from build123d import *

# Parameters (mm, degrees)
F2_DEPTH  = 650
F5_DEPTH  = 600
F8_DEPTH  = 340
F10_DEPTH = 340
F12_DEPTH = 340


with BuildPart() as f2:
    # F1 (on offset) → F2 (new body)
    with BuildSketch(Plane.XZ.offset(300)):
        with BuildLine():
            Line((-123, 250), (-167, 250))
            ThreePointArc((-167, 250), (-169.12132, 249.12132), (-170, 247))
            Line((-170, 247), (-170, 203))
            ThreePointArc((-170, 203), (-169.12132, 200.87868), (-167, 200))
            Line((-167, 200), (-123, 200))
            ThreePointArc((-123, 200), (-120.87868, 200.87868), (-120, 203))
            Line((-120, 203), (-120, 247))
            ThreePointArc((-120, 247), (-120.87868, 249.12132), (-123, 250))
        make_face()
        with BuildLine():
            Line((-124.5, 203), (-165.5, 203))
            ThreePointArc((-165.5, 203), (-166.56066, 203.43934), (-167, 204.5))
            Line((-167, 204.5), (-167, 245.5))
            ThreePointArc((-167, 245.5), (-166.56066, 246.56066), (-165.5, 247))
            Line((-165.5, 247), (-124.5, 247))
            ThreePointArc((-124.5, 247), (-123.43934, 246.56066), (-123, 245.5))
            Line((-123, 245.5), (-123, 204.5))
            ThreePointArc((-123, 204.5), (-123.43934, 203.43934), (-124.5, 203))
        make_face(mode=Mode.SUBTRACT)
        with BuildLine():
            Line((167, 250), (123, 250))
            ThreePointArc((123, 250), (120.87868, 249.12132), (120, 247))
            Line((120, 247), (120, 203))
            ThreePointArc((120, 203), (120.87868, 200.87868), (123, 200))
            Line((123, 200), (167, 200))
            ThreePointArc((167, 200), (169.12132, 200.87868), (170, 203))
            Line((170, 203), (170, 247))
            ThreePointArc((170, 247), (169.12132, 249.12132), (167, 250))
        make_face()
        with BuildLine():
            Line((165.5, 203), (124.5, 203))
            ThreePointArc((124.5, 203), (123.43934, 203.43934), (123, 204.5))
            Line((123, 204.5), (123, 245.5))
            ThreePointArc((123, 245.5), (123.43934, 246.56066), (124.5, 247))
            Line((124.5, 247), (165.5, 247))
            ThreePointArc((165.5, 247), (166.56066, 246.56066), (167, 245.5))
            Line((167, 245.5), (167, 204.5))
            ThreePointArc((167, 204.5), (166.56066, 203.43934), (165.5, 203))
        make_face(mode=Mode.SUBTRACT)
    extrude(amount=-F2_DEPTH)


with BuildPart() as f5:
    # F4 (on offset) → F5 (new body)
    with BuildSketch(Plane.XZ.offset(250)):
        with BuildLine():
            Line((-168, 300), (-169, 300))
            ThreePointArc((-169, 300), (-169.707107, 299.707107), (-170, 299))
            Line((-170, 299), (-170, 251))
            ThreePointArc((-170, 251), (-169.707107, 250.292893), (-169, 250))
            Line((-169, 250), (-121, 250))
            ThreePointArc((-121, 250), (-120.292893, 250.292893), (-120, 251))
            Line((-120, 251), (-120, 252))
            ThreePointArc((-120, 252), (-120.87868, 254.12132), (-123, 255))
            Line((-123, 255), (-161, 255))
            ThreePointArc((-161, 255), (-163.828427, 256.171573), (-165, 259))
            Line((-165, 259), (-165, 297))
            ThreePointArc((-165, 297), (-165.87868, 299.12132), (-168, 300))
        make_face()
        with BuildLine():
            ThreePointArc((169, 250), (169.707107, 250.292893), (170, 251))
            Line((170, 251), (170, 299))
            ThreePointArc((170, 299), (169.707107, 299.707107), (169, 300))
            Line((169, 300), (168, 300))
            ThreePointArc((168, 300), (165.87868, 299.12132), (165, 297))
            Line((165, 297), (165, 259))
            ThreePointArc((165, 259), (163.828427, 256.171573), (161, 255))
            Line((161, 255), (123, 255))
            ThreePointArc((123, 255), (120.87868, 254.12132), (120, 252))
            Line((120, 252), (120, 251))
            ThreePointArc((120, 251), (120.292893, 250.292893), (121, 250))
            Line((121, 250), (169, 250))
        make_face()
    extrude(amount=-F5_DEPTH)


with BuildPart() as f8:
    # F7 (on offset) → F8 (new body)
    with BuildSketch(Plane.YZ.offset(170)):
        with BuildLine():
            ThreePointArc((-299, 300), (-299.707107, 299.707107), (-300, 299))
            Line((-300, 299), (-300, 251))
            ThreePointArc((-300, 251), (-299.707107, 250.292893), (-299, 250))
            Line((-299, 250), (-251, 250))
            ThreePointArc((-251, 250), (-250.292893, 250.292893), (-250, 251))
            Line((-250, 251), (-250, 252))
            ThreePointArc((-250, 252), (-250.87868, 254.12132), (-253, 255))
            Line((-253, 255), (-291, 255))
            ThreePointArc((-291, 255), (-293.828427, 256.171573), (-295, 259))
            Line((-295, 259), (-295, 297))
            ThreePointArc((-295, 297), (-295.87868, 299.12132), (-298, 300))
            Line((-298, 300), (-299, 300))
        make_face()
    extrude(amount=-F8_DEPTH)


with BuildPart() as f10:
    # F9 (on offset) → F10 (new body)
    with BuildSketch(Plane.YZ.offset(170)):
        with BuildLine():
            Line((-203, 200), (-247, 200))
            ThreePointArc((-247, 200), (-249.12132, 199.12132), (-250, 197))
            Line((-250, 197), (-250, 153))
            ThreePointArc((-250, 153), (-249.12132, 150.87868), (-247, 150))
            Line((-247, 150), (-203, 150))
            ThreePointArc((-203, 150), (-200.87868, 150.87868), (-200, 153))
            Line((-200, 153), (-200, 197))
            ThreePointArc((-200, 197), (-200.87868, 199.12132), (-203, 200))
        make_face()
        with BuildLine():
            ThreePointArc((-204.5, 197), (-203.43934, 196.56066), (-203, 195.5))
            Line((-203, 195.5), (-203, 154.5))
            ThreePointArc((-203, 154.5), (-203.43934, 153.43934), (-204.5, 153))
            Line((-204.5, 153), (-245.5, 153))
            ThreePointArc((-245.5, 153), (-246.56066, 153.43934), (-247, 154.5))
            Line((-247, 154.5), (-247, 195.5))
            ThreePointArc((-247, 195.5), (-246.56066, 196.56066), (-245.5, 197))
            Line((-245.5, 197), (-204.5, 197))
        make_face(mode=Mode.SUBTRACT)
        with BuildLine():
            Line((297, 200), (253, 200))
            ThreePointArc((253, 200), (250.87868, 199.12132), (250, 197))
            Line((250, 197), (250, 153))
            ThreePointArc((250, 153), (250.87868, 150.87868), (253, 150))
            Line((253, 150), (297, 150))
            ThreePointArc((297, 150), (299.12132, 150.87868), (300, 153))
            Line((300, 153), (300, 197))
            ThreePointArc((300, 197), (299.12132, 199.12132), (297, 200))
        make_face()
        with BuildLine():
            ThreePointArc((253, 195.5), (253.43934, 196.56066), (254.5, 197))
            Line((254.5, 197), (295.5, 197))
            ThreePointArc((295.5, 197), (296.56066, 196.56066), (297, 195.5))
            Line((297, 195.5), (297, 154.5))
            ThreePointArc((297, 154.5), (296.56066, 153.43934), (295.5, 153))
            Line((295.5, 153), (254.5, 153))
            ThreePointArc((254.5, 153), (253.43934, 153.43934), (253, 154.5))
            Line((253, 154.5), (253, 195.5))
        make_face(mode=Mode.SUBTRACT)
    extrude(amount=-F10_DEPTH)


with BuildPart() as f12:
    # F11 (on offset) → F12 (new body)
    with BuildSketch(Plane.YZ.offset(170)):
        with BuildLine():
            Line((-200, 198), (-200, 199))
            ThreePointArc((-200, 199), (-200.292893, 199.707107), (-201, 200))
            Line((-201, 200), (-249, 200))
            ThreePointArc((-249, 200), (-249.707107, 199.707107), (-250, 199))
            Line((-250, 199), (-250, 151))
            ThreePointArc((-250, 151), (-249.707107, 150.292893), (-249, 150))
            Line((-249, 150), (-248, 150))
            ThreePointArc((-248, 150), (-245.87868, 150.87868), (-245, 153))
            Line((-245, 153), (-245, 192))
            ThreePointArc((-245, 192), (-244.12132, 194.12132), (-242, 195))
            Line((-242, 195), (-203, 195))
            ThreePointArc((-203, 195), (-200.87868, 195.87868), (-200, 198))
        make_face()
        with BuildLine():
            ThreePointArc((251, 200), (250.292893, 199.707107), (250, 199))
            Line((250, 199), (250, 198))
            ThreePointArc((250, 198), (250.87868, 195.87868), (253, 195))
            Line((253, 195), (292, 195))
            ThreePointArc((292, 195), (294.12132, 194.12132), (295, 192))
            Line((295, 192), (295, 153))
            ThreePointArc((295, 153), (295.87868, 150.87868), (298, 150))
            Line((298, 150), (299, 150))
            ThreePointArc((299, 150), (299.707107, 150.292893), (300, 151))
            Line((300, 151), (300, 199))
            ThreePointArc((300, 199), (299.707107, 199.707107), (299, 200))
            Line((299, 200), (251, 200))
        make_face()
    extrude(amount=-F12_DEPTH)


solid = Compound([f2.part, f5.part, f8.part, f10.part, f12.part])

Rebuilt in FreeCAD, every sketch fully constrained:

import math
import FreeCAD as App
import Part
import Sketcher
Q = App.Units.Quantity

doc = App.newDocument("Part")
body = doc.addObject("PartDesign::Body", "Body")
body.AllowCompound = True

sketch1 = body.newObject("Sketcher::SketchObject", "Sketch")
sketch1.AttachmentSupport = (doc.getObject("XZ_Plane"), [""])
sketch1.MapMode = "FlatFace"
sketch1.AttachmentOffset = App.Placement(App.Vector(0, 0, 300), App.Rotation())
sketch1.addGeometry([
    Part.LineSegment(App.Vector(-123, 250, 0), App.Vector(-167, 250, 0)),
    Part.ArcOfCircle(Part.Circle(App.Vector(-167, 247, 0), App.Vector(0, 0, 1), 3), math.radians(90), math.radians(180)),
    Part.LineSegment(App.Vector(-170, 247, 0), App.Vector(-170, 203, 0)),
    Part.ArcOfCircle(Part.Circle(App.Vector(-167, 203, 0), App.Vector(0, 0, 1), 3), math.radians(-180), math.radians(-90)),
    Part.LineSegment(App.Vector(-167, 200, 0), App.Vector(-123, 200, 0)),
    Part.ArcOfCircle(Part.Circle(App.Vector(-123, 203, 0), App.Vector(0, 0, 1), 3), math.radians(-90), math.radians(0)),
    Part.LineSegment(App.Vector(-120, 203, 0), App.Vector(-120, 247, 0)),
    Part.ArcOfCircle(Part.Circle(App.Vector(-123, 247, 0), App.Vector(0, 0, 1), 3), math.radians(0), math.radians(90)),
    Part.ArcOfCircle(Part.Circle(App.Vector(-124.5, 204.5, 0), App.Vector(0, 0, 1), 1.5), math.radians(-90), math.radians(0)),
    Part.LineSegment(App.Vector(-124.5, 203, 0), App.Vector(-165.5, 203, 0)),
    Part.ArcOfCircle(Part.Circle(App.Vector(-165.5, 204.5, 0), App.Vector(0, 0, 1), 1.5), math.radians(-180), math.radians(-90)),
    Part.LineSegment(App.Vector(-167, 204.5, 0), App.Vector(-167, 245.5, 0)),
    Part.ArcOfCircle(Part.Circle(App.Vector(-165.5, 245.5, 0), App.Vector(0, 0, 1), 1.5), math.radians(90), math.radians(180)),
    Part.LineSegment(App.Vector(-165.5, 247, 0), App.Vector(-124.5, 247, 0)),
    Part.ArcOfCircle(Part.Circle(App.Vector(-124.5, 245.5, 0), App.Vector(0, 0, 1), 1.5), math.radians(0), math.radians(90)),
    Part.LineSegment(App.Vector(-123, 245.5, 0), App.Vector(-123, 204.5, 0)),
    Part.LineSegment(App.Vector(167, 250, 0), App.Vector(123, 250, 0)),
    Part.ArcOfCircle(Part.Circle(App.Vector(123, 247, 0), App.Vector(0, 0, 1), 3), math.radians(90), math.radians(180)),
    Part.LineSegment(App.Vector(120, 247, 0), App.Vector(120, 203, 0)),
    Part.ArcOfCircle(Part.Circle(App.Vector(123, 203, 0), App.Vector(0, 0, 1), 3), math.radians(-180), math.radians(-90)),
    Part.LineSegment(App.Vector(123, 200, 0), App.Vector(167, 200, 0)),
    Part.ArcOfCircle(Part.Circle(App.Vector(167, 203, 0), App.Vector(0, 0, 1), 3), math.radians(-90), math.radians(0)),
    Part.LineSegment(App.Vector(170, 203, 0), App.Vector(170, 247, 0)),
    Part.ArcOfCircle(Part.Circle(App.Vector(167, 247, 0), App.Vector(0, 0, 1), 3), math.radians(0), math.radians(90)),
    Part.ArcOfCircle(Part.Circle(App.Vector(165.5, 204.5, 0), App.Vector(0, 0, 1), 1.5), math.radians(-90), math.radians(0)),
    Part.LineSegment(App.Vector(165.5, 203, 0), App.Vector(124.5, 203, 0)),
    Part.ArcOfCircle(Part.Circle(App.Vector(124.5, 204.5, 0), App.Vector(0, 0, 1), 1.5), math.radians(-180), math.radians(-90)),
    Part.LineSegment(App.Vector(123, 204.5, 0), App.Vector(123, 245.5, 0)),
    Part.ArcOfCircle(Part.Circle(App.Vector(124.5, 245.5, 0), App.Vector(0, 0, 1), 1.5), math.radians(90), math.radians(180)),
    Part.LineSegment(App.Vector(124.5, 247, 0), App.Vector(165.5, 247, 0)),
    Part.ArcOfCircle(Part.Circle(App.Vector(165.5, 245.5, 0), App.Vector(0, 0, 1), 1.5), math.radians(0), math.radians(90)),
    Part.LineSegment(App.Vector(167, 245.5, 0), App.Vector(167, 204.5, 0)),
], False)
sketch1.addConstraint([
    Sketcher.Constraint("Tangent", 0, 2, 1, 1),
    Sketcher.Constraint("Tangent", 1, 2, 2, 1),
    Sketcher.Constraint("Tangent", 2, 2, 3, 1),
    Sketcher.Constraint("Tangent", 3, 2, 4, 1),
    Sketcher.Constraint("Tangent", 4, 2, 5, 1),
    Sketcher.Constraint("Tangent", 5, 2, 6, 1),
    Sketcher.Constraint("Tangent", 6, 2, 7, 1),
    Sketcher.Constraint("Tangent", 7, 2, 0, 1),
    Sketcher.Constraint("Tangent", 8, 1, 9, 1),
    Sketcher.Constraint("Tangent", 9, 2, 10, 2),
    Sketcher.Constraint("Tangent", 10, 1, 11, 1),
    Sketcher.Constraint("Tangent", 11, 2, 12, 2),
    Sketcher.Constraint("Tangent", 12, 1, 13, 1),
    Sketcher.Constraint("Tangent", 13, 2, 14, 2),
    Sketcher.Constraint("Tangent", 14, 1, 15, 1),
    Sketcher.Constraint("Tangent", 15, 2, 8, 2),
    Sketcher.Constraint("Tangent", 16, 2, 17, 1),
    Sketcher.Constraint("Tangent", 17, 2, 18, 1),
    Sketcher.Constraint("Tangent", 18, 2, 19, 1),
    Sketcher.Constraint("Tangent", 19, 2, 20, 1),
    Sketcher.Constraint("Tangent", 20, 2, 21, 1),
    Sketcher.Constraint("Tangent", 21, 2, 22, 1),
    Sketcher.Constraint("Tangent", 22, 2, 23, 1),
    Sketcher.Constraint("Tangent", 23, 2, 16, 1),
    Sketcher.Constraint("Tangent", 24, 1, 25, 1),
    Sketcher.Constraint("Tangent", 25, 2, 26, 2),
    Sketcher.Constraint("Tangent", 26, 1, 27, 1),
    Sketcher.Constraint("Tangent", 27, 2, 28, 2),
    Sketcher.Constraint("Tangent", 28, 1, 29, 1),
    Sketcher.Constraint("Tangent", 29, 2, 30, 2),
    Sketcher.Constraint("Tangent", 30, 1, 31, 1),
    Sketcher.Constraint("Tangent", 31, 2, 24, 2),
    Sketcher.Constraint("Horizontal", 0),
    Sketcher.Constraint("Vertical", 2),
    Sketcher.Constraint("Horizontal", 4),
    Sketcher.Constraint("Vertical", 6),
    Sketcher.Constraint("Horizontal", 9),
    Sketcher.Constraint("Vertical", 11),
    Sketcher.Constraint("Horizontal", 13),
    Sketcher.Constraint("Vertical", 15),
    Sketcher.Constraint("Horizontal", 16),
    Sketcher.Constraint("Vertical", 18),
    Sketcher.Constraint("Horizontal", 20),
    Sketcher.Constraint("Vertical", 22),
    Sketcher.Constraint("Horizontal", 25),
    Sketcher.Constraint("Vertical", 27),
    Sketcher.Constraint("Horizontal", 29),
    Sketcher.Constraint("Vertical", 31),
    Sketcher.Constraint("Equal", 1, 3),
    Sketcher.Constraint("Equal", 3, 5),
    Sketcher.Constraint("Equal", 5, 7),
    Sketcher.Constraint("Equal", 8, 10),
    Sketcher.Constraint("Equal", 10, 12),
    Sketcher.Constraint("Equal", 12, 14),
    Sketcher.Constraint("Equal", 7, 17),
    Sketcher.Constraint("Equal", 17, 19),
    Sketcher.Constraint("Equal", 19, 21),
    Sketcher.Constraint("Equal", 21, 23),
    Sketcher.Constraint("Equal", 14, 24),
    Sketcher.Constraint("Equal", 24, 26),
    Sketcher.Constraint("Equal", 26, 28),
    Sketcher.Constraint("Equal", 28, 30),
    Sketcher.Constraint("Symmetric", 7, 3, 17, 3, -2),
    Sketcher.Constraint("Symmetric", 3, 3, 21, 3, -2),
    Sketcher.Constraint("Symmetric", 10, 3, 24, 3, -2),
    Sketcher.Constraint("Symmetric", 14, 3, 28, 3, -2),
    Sketcher.Constraint("Horizontal", 5, 2, 8, 1),
    Sketcher.Constraint("Horizontal", 6, 2, 12, 1),
    Sketcher.Constraint("Vertical", 3, 2, 10, 1),
    Sketcher.Constraint("Vertical", 7, 2, 14, 1),
    Sketcher.Constraint("Equal", 20, 2),
    Sketcher.Constraint("Radius", 1, Q("3.000001 mm")),
    Sketcher.Constraint("Radius", 8, Q("1.500001 mm")),
    Sketcher.Constraint("DistanceX", 0, 2, 0, 1, Q("44 mm")),
    Sketcher.Constraint("DistanceX", 1, 3, -1, 1, Q("166.999999 mm")),
    Sketcher.Constraint("DistanceY", -1, 1, 1, 3, Q("246.999999 mm")),
])
pad1 = body.newObject("PartDesign::Pad", "Pad")
pad1.Profile = sketch1
pad1.Length = 650
pad1.Reversed = True
body2 = doc.addObject("PartDesign::Body", "Body001")
body2.AllowCompound = True

sketch2 = body2.newObject("Sketcher::SketchObject", "Sketch001")
sketch2.AttachmentSupport = (doc.getObject("XZ_Plane001"), [""])
sketch2.MapMode = "FlatFace"
sketch2.AttachmentOffset = App.Placement(App.Vector(0, 0, 250), App.Rotation())
sketch2.addGeometry([
    Part.LineSegment(App.Vector(-168, 300, 0), App.Vector(-169, 300, 0)),
    Part.ArcOfCircle(Part.Circle(App.Vector(-169, 299, 0), App.Vector(0, 0, 1), 1), math.radians(90), math.radians(180)),
    Part.LineSegment(App.Vector(-170, 299, 0), App.Vector(-170, 251, 0)),
    Part.ArcOfCircle(Part.Circle(App.Vector(-169, 251, 0), App.Vector(0, 0, 1), 1), math.radians(180), math.radians(270)),
    Part.LineSegment(App.Vector(-169, 250, 0), App.Vector(-121, 250, 0)),
    Part.ArcOfCircle(Part.Circle(App.Vector(-121, 251, 0), App.Vector(0, 0, 1), 1), math.radians(-90), math.radians(0)),
    Part.LineSegment(App.Vector(-120, 251, 0), App.Vector(-120, 252, 0)),
    Part.ArcOfCircle(Part.Circle(App.Vector(-123, 252, 0), App.Vector(0, 0, 1), 3), math.radians(0), math.radians(90)),
    Part.LineSegment(App.Vector(-123, 255, 0), App.Vector(-161, 255, 0)),
    Part.ArcOfCircle(Part.Circle(App.Vector(-161, 259, 0), App.Vector(0, 0, 1), 4), math.radians(-180), math.radians(-90)),
    Part.LineSegment(App.Vector(-165, 259, 0), App.Vector(-165, 297, 0)),
    Part.ArcOfCircle(Part.Circle(App.Vector(-168, 297, 0), App.Vector(0, 0, 1), 3), math.radians(0), math.radians(90)),
    Part.ArcOfCircle(Part.Circle(App.Vector(169, 251, 0), App.Vector(0, 0, 1), 1), math.radians(-90), math.radians(0)),
    Part.LineSegment(App.Vector(170, 251, 0), App.Vector(170, 299, 0)),
    Part.ArcOfCircle(Part.Circle(App.Vector(169, 299, 0), App.Vector(0, 0, 1), 1), math.radians(0), math.radians(90)),
    Part.LineSegment(App.Vector(169, 300, 0), App.Vector(168, 300, 0)),
    Part.ArcOfCircle(Part.Circle(App.Vector(168, 297, 0), App.Vector(0, 0, 1), 3), math.radians(90), math.radians(180)),
    Part.LineSegment(App.Vector(165, 297, 0), App.Vector(165, 259, 0)),
    Part.ArcOfCircle(Part.Circle(App.Vector(161, 259, 0), App.Vector(0, 0, 1), 4), math.radians(-90), math.radians(0)),
    Part.LineSegment(App.Vector(161, 255, 0), App.Vector(123, 255, 0)),
    Part.ArcOfCircle(Part.Circle(App.Vector(123, 252, 0), App.Vector(0, 0, 1), 3), math.radians(90), math.radians(180)),
    Part.LineSegment(App.Vector(120, 252, 0), App.Vector(120, 251, 0)),
    Part.ArcOfCircle(Part.Circle(App.Vector(121, 251, 0), App.Vector(0, 0, 1), 1), math.radians(180), math.radians(270)),
    Part.LineSegment(App.Vector(121, 250, 0), App.Vector(169, 250, 0)),
], False)
sketch2.addConstraint([
    Sketcher.Constraint("Tangent", 0, 2, 1, 1),
    Sketcher.Constraint("Tangent", 1, 2, 2, 1),
    Sketcher.Constraint("Tangent", 2, 2, 3, 1),
    Sketcher.Constraint("Tangent", 3, 2, 4, 1),
    Sketcher.Constraint("Tangent", 4, 2, 5, 1),
    Sketcher.Constraint("Tangent", 5, 2, 6, 1),
    Sketcher.Constraint("Tangent", 6, 2, 7, 1),
    Sketcher.Constraint("Tangent", 7, 2, 8, 1),
    Sketcher.Constraint("Tangent", 8, 2, 9, 2),
    Sketcher.Constraint("Tangent", 9, 1, 10, 1),
    Sketcher.Constraint("Tangent", 10, 2, 11, 1),
    Sketcher.Constraint("Tangent", 11, 2, 0, 1),
    Sketcher.Constraint("Tangent", 12, 2, 13, 1),
    Sketcher.Constraint("Tangent", 13, 2, 14, 1),
    Sketcher.Constraint("Tangent", 14, 2, 15, 1),
    Sketcher.Constraint("Tangent", 15, 2, 16, 1),
    Sketcher.Constraint("Tangent", 16, 2, 17, 1),
    Sketcher.Constraint("Tangent", 17, 2, 18, 2),
    Sketcher.Constraint("Tangent", 18, 1, 19, 1),
    Sketcher.Constraint("Tangent", 19, 2, 20, 1),
    Sketcher.Constraint("Tangent", 20, 2, 21, 1),
    Sketcher.Constraint("Tangent", 21, 2, 22, 1),
    Sketcher.Constraint("Tangent", 22, 2, 23, 1),
    Sketcher.Constraint("Tangent", 23, 2, 12, 1),
    Sketcher.Constraint("Horizontal", 0),
    Sketcher.Constraint("Vertical", 2),
    Sketcher.Constraint("Horizontal", 4),
    Sketcher.Constraint("Vertical", 6),
    Sketcher.Constraint("Horizontal", 8),
    Sketcher.Constraint("Vertical", 10),
    Sketcher.Constraint("Vertical", 13),
    Sketcher.Constraint("Horizontal", 15),
    Sketcher.Constraint("Vertical", 17),
    Sketcher.Constraint("Horizontal", 19),
    Sketcher.Constraint("Vertical", 21),
    Sketcher.Constraint("Horizontal", 23),
    Sketcher.Constraint("Equal", 1, 3),
    Sketcher.Constraint("Equal", 3, 5),
    Sketcher.Constraint("Equal", 7, 11),
    Sketcher.Constraint("Equal", 5, 12),
    Sketcher.Constraint("Equal", 12, 14),
    Sketcher.Constraint("Equal", 11, 16),
    Sketcher.Constraint("Equal", 9, 18),
    Sketcher.Constraint("Equal", 16, 20),
    Sketcher.Constraint("Equal", 14, 22),
    Sketcher.Constraint("Symmetric", 3, 3, 12, 3, -2),
    Sketcher.Constraint("Symmetric", 11, 3, 16, 3, -2),
    Sketcher.Constraint("Symmetric", 7, 3, 20, 3, -2),
    Sketcher.Constraint("Equal", 23, 2),
    Sketcher.Constraint("Equal", 15, 6),
    Sketcher.Constraint("Radius", 1, Q("0.999999 mm")),
    Sketcher.Constraint("Radius", 7, Q("3.000001 mm")),
    Sketcher.Constraint("Radius", 9, Q("4 mm")),
    Sketcher.Constraint("DistanceX", 0, 2, 0, 1, Q("1 mm")),
    Sketcher.Constraint("DistanceX", 4, 1, 4, 2, Q("48 mm")),
    Sketcher.Constraint("DistanceX", 1, 3, -1, 1, Q("169.000001 mm")),
    Sketcher.Constraint("DistanceY", -1, 1, 1, 3, Q("299.000001 mm")),
])
pad2 = body2.newObject("PartDesign::Pad", "Pad001")
pad2.Profile = sketch2
pad2.Length = 600
pad2.Reversed = True
body3 = doc.addObject("PartDesign::Body", "Body002")

sketch3 = body3.newObject("Sketcher::SketchObject", "Sketch002")
sketch3.AttachmentSupport = (doc.getObject("YZ_Plane002"), [""])
sketch3.MapMode = "FlatFace"
sketch3.AttachmentOffset = App.Placement(App.Vector(0, 0, 170), App.Rotation())
sketch3.addGeometry([
    Part.ArcOfCircle(Part.Circle(App.Vector(-299, 299, 0), App.Vector(0, 0, 1), 1), math.radians(90), math.radians(180)),
    Part.LineSegment(App.Vector(-300, 299, 0), App.Vector(-300, 251, 0)),
    Part.ArcOfCircle(Part.Circle(App.Vector(-299, 251, 0), App.Vector(0, 0, 1), 1), math.radians(180), math.radians(270)),
    Part.LineSegment(App.Vector(-299, 250, 0), App.Vector(-251, 250, 0)),
    Part.ArcOfCircle(Part.Circle(App.Vector(-251, 251, 0), App.Vector(0, 0, 1), 1), math.radians(-90), math.radians(0)),
    Part.LineSegment(App.Vector(-250, 251, 0), App.Vector(-250, 252, 0)),
    Part.ArcOfCircle(Part.Circle(App.Vector(-253, 252, 0), App.Vector(0, 0, 1), 3), math.radians(0), math.radians(90)),
    Part.LineSegment(App.Vector(-253, 255, 0), App.Vector(-291, 255, 0)),
    Part.ArcOfCircle(Part.Circle(App.Vector(-291, 259, 0), App.Vector(0, 0, 1), 4), math.radians(-180), math.radians(-90)),
    Part.LineSegment(App.Vector(-295, 259, 0), App.Vector(-295, 297, 0)),
    Part.ArcOfCircle(Part.Circle(App.Vector(-298, 297, 0), App.Vector(0, 0, 1), 3), math.radians(0), math.radians(90)),
    Part.LineSegment(App.Vector(-298, 300, 0), App.Vector(-299, 300, 0)),
], False)
sketch3.addConstraint([
    Sketcher.Constraint("Tangent", 0, 2, 1, 1),
    Sketcher.Constraint("Tangent", 1, 2, 2, 1),
    Sketcher.Constraint("Tangent", 2, 2, 3, 1),
    Sketcher.Constraint("Tangent", 3, 2, 4, 1),
    Sketcher.Constraint("Tangent", 4, 2, 5, 1),
    Sketcher.Constraint("Tangent", 5, 2, 6, 1),
    Sketcher.Constraint("Tangent", 6, 2, 7, 1),
    Sketcher.Constraint("Tangent", 7, 2, 8, 2),
    Sketcher.Constraint("Tangent", 8, 1, 9, 1),
    Sketcher.Constraint("Tangent", 9, 2, 10, 1),
    Sketcher.Constraint("Tangent", 10, 2, 11, 1),
    Sketcher.Constraint("Tangent", 11, 2, 0, 1),
    Sketcher.Constraint("Vertical", 1),
    Sketcher.Constraint("Horizontal", 3),
    Sketcher.Constraint("Vertical", 5),
    Sketcher.Constraint("Horizontal", 7),
    Sketcher.Constraint("Vertical", 9),
    Sketcher.Constraint("Horizontal", 11),
    Sketcher.Constraint("Equal", 0, 2),
    Sketcher.Constraint("Equal", 2, 4),
    Sketcher.Constraint("Equal", 6, 10),
    Sketcher.Constraint("Equal", 3, 1),
    Sketcher.Constraint("Equal", 11, 5),
    Sketcher.Constraint("Radius", 0, Q("0.999999 mm")),
    Sketcher.Constraint("Radius", 6, Q("3.000001 mm")),
    Sketcher.Constraint("Radius", 8, Q("4 mm")),
    Sketcher.Constraint("DistanceX", 3, 1, 3, 2, Q("48 mm")),
    Sketcher.Constraint("DistanceX", 7, 2, 7, 1, Q("38 mm")),
    Sketcher.Constraint("DistanceX", 0, 3, -1, 1, Q("299.000001 mm")),
    Sketcher.Constraint("DistanceY", -1, 1, 0, 3, Q("299.000001 mm")),
])
pad3 = body3.newObject("PartDesign::Pad", "Pad002")
pad3.Profile = sketch3
pad3.Length = 340
pad3.Reversed = True
body4 = doc.addObject("PartDesign::Body", "Body003")
body4.AllowCompound = True

sketch4 = body4.newObject("Sketcher::SketchObject", "Sketch003")
sketch4.AttachmentSupport = (doc.getObject("YZ_Plane003"), [""])
sketch4.MapMode = "FlatFace"
sketch4.AttachmentOffset = App.Placement(App.Vector(0, 0, 170), App.Rotation())
sketch4.addGeometry([
    Part.LineSegment(App.Vector(-203, 200, 0), App.Vector(-247, 200, 0)),
    Part.ArcOfCircle(Part.Circle(App.Vector(-247, 197, 0), App.Vector(0, 0, 1), 3), math.radians(90), math.radians(180)),
    Part.LineSegment(App.Vector(-250, 197, 0), App.Vector(-250, 153, 0)),
    Part.ArcOfCircle(Part.Circle(App.Vector(-247, 153, 0), App.Vector(0, 0, 1), 3), math.radians(-180), math.radians(-90)),
    Part.LineSegment(App.Vector(-247, 150, 0), App.Vector(-203, 150, 0)),
    Part.ArcOfCircle(Part.Circle(App.Vector(-203, 153, 0), App.Vector(0, 0, 1), 3), math.radians(-90), math.radians(0)),
    Part.LineSegment(App.Vector(-200, 153, 0), App.Vector(-200, 197, 0)),
    Part.ArcOfCircle(Part.Circle(App.Vector(-203, 197, 0), App.Vector(0, 0, 1), 3), math.radians(0), math.radians(90)),
    Part.LineSegment(App.Vector(-245.5, 197, 0), App.Vector(-204.5, 197, 0)),
    Part.ArcOfCircle(Part.Circle(App.Vector(-204.5, 195.5, 0), App.Vector(0, 0, 1), 1.5), math.radians(0), math.radians(90)),
    Part.LineSegment(App.Vector(-203, 195.5, 0), App.Vector(-203, 154.5, 0)),
    Part.ArcOfCircle(Part.Circle(App.Vector(-204.5, 154.5, 0), App.Vector(0, 0, 1), 1.5), math.radians(-90), math.radians(0)),
    Part.LineSegment(App.Vector(-204.5, 153, 0), App.Vector(-245.5, 153, 0)),
    Part.ArcOfCircle(Part.Circle(App.Vector(-245.5, 154.5, 0), App.Vector(0, 0, 1), 1.5), math.radians(-180), math.radians(-90)),
    Part.LineSegment(App.Vector(-247, 154.5, 0), App.Vector(-247, 195.5, 0)),
    Part.ArcOfCircle(Part.Circle(App.Vector(-245.5, 195.5, 0), App.Vector(0, 0, 1), 1.5), math.radians(90), math.radians(180)),
    Part.LineSegment(App.Vector(297, 200, 0), App.Vector(253, 200, 0)),
    Part.ArcOfCircle(Part.Circle(App.Vector(253, 197, 0), App.Vector(0, 0, 1), 3), math.radians(90), math.radians(180)),
    Part.LineSegment(App.Vector(250, 197, 0), App.Vector(250, 153, 0)),
    Part.ArcOfCircle(Part.Circle(App.Vector(253, 153, 0), App.Vector(0, 0, 1), 3), math.radians(-180), math.radians(-90)),
    Part.LineSegment(App.Vector(253, 150, 0), App.Vector(297, 150, 0)),
    Part.ArcOfCircle(Part.Circle(App.Vector(297, 153, 0), App.Vector(0, 0, 1), 3), math.radians(-90), math.radians(0)),
    Part.LineSegment(App.Vector(300, 153, 0), App.Vector(300, 197, 0)),
    Part.ArcOfCircle(Part.Circle(App.Vector(297, 197, 0), App.Vector(0, 0, 1), 3), math.radians(0), math.radians(90)),
    Part.LineSegment(App.Vector(253, 154.5, 0), App.Vector(253, 195.5, 0)),
    Part.ArcOfCircle(Part.Circle(App.Vector(254.5, 195.5, 0), App.Vector(0, 0, 1), 1.5), math.radians(90), math.radians(180)),
    Part.LineSegment(App.Vector(254.5, 197, 0), App.Vector(295.5, 197, 0)),
    Part.ArcOfCircle(Part.Circle(App.Vector(295.5, 195.5, 0), App.Vector(0, 0, 1), 1.5), math.radians(0), math.radians(90)),
    Part.LineSegment(App.Vector(297, 195.5, 0), App.Vector(297, 154.5, 0)),
    Part.ArcOfCircle(Part.Circle(App.Vector(295.5, 154.5, 0), App.Vector(0, 0, 1), 1.5), math.radians(-90), math.radians(0)),
    Part.LineSegment(App.Vector(295.5, 153, 0), App.Vector(254.5, 153, 0)),
    Part.ArcOfCircle(Part.Circle(App.Vector(254.5, 154.5, 0), App.Vector(0, 0, 1), 1.5), math.radians(-180), math.radians(-90)),
], False)
sketch4.addConstraint([
    Sketcher.Constraint("Tangent", 0, 2, 1, 1),
    Sketcher.Constraint("Tangent", 1, 2, 2, 1),
    Sketcher.Constraint("Tangent", 2, 2, 3, 1),
    Sketcher.Constraint("Tangent", 3, 2, 4, 1),
    Sketcher.Constraint("Tangent", 4, 2, 5, 1),
    Sketcher.Constraint("Tangent", 5, 2, 6, 1),
    Sketcher.Constraint("Tangent", 6, 2, 7, 1),
    Sketcher.Constraint("Tangent", 7, 2, 0, 1),
    Sketcher.Constraint("Tangent", 8, 2, 9, 2),
    Sketcher.Constraint("Tangent", 9, 1, 10, 1),
    Sketcher.Constraint("Tangent", 10, 2, 11, 2),
    Sketcher.Constraint("Tangent", 11, 1, 12, 1),
    Sketcher.Constraint("Tangent", 12, 2, 13, 2),
    Sketcher.Constraint("Tangent", 13, 1, 14, 1),
    Sketcher.Constraint("Tangent", 14, 2, 15, 2),
    Sketcher.Constraint("Tangent", 15, 1, 8, 1),
    Sketcher.Constraint("Tangent", 16, 2, 17, 1),
    Sketcher.Constraint("Tangent", 17, 2, 18, 1),
    Sketcher.Constraint("Tangent", 18, 2, 19, 1),
    Sketcher.Constraint("Tangent", 19, 2, 20, 1),
    Sketcher.Constraint("Tangent", 20, 2, 21, 1),
    Sketcher.Constraint("Tangent", 21, 2, 22, 1),
    Sketcher.Constraint("Tangent", 22, 2, 23, 1),
    Sketcher.Constraint("Tangent", 23, 2, 16, 1),
    Sketcher.Constraint("Tangent", 24, 2, 25, 2),
    Sketcher.Constraint("Tangent", 25, 1, 26, 1),
    Sketcher.Constraint("Tangent", 26, 2, 27, 2),
    Sketcher.Constraint("Tangent", 27, 1, 28, 1),
    Sketcher.Constraint("Tangent", 28, 2, 29, 2),
    Sketcher.Constraint("Tangent", 29, 1, 30, 1),
    Sketcher.Constraint("Tangent", 30, 2, 31, 2),
    Sketcher.Constraint("Tangent", 31, 1, 24, 1),
    Sketcher.Constraint("Horizontal", 0),
    Sketcher.Constraint("Vertical", 2),
    Sketcher.Constraint("Horizontal", 4),
    Sketcher.Constraint("Vertical", 6),
    Sketcher.Constraint("Horizontal", 8),
    Sketcher.Constraint("Vertical", 10),
    Sketcher.Constraint("Horizontal", 12),
    Sketcher.Constraint("Vertical", 14),
    Sketcher.Constraint("Horizontal", 16),
    Sketcher.Constraint("Vertical", 18),
    Sketcher.Constraint("Horizontal", 20),
    Sketcher.Constraint("Vertical", 22),
    Sketcher.Constraint("Vertical", 24),
    Sketcher.Constraint("Horizontal", 26),
    Sketcher.Constraint("Vertical", 28),
    Sketcher.Constraint("Horizontal", 30),
    Sketcher.Constraint("Equal", 1, 3),
    Sketcher.Constraint("Equal", 3, 5),
    Sketcher.Constraint("Equal", 5, 7),
    Sketcher.Constraint("Equal", 9, 11),
    Sketcher.Constraint("Equal", 11, 13),
    Sketcher.Constraint("Equal", 13, 15),
    Sketcher.Constraint("Equal", 7, 17),
    Sketcher.Constraint("Equal", 17, 19),
    Sketcher.Constraint("Equal", 19, 21),
    Sketcher.Constraint("Equal", 21, 23),
    Sketcher.Constraint("Equal", 15, 25),
    Sketcher.Constraint("Equal", 25, 27),
    Sketcher.Constraint("Equal", 27, 29),
    Sketcher.Constraint("Equal", 29, 31),
    Sketcher.Constraint("Symmetric", 1, 2, 17, 2, -2),
    Sketcher.Constraint("Horizontal", 5, 3, 19, 3),
    Sketcher.Constraint("Horizontal", 15, 3, 25, 3),
    Sketcher.Constraint("Horizontal", 13, 3, 29, 3),
    Sketcher.Constraint("Horizontal", 6, 2, 8, 2),
    Sketcher.Constraint("Horizontal", 5, 2, 11, 1),
    Sketcher.Constraint("Vertical", 7, 2, 9, 1),
    Sketcher.Constraint("Vertical", 3, 2, 13, 1),
    Sketcher.Constraint("Vertical", 19, 2, 24, 2),
    Sketcher.Constraint("Vertical", 23, 2, 27, 1),
    Sketcher.Constraint("Equal", 4, 16),
    Sketcher.Constraint("Equal", 20, 2),
    Sketcher.Constraint("Radius", 1, Q("3.000001 mm")),
    Sketcher.Constraint("Radius", 9, Q("1.500001 mm")),
    Sketcher.Constraint("DistanceX", 0, 2, 0, 1, Q("44 mm")),
    Sketcher.Constraint("DistanceX", 1, 3, -1, 1, Q("246.999999 mm")),
    Sketcher.Constraint("DistanceY", -1, 1, 1, 3, Q("196.999999 mm")),
])
pad4 = body4.newObject("PartDesign::Pad", "Pad003")
pad4.Profile = sketch4
pad4.Length = 340
pad4.Reversed = True
body5 = doc.addObject("PartDesign::Body", "Body004")
body5.AllowCompound = True

sketch5 = body5.newObject("Sketcher::SketchObject", "Sketch004")
sketch5.AttachmentSupport = (doc.getObject("YZ_Plane004"), [""])
sketch5.MapMode = "FlatFace"
sketch5.AttachmentOffset = App.Placement(App.Vector(0, 0, 170), App.Rotation())
sketch5.addGeometry([
    Part.LineSegment(App.Vector(-200, 198, 0), App.Vector(-200, 199, 0)),
    Part.ArcOfCircle(Part.Circle(App.Vector(-201, 199, 0), App.Vector(0, 0, 1), 1), math.radians(0), math.radians(90)),
    Part.LineSegment(App.Vector(-201, 200, 0), App.Vector(-249, 200, 0)),
    Part.ArcOfCircle(Part.Circle(App.Vector(-249, 199, 0), App.Vector(0, 0, 1), 1), math.radians(90), math.radians(180)),
    Part.LineSegment(App.Vector(-250, 199, 0), App.Vector(-250, 151, 0)),
    Part.ArcOfCircle(Part.Circle(App.Vector(-249, 151, 0), App.Vector(0, 0, 1), 1), math.radians(180), math.radians(270)),
    Part.LineSegment(App.Vector(-249, 150, 0), App.Vector(-248, 150, 0)),
    Part.ArcOfCircle(Part.Circle(App.Vector(-248, 153, 0), App.Vector(0, 0, 1), 3), math.radians(-90), math.radians(0)),
    Part.LineSegment(App.Vector(-245, 153, 0), App.Vector(-245, 192, 0)),
    Part.ArcOfCircle(Part.Circle(App.Vector(-242, 192, 0), App.Vector(0, 0, 1), 3), math.radians(90), math.radians(180)),
    Part.LineSegment(App.Vector(-242, 195, 0), App.Vector(-203, 195, 0)),
    Part.ArcOfCircle(Part.Circle(App.Vector(-203, 198, 0), App.Vector(0, 0, 1), 3), math.radians(-90), math.radians(0)),
    Part.ArcOfCircle(Part.Circle(App.Vector(251, 199, 0), App.Vector(0, 0, 1), 1), math.radians(90), math.radians(180)),
    Part.LineSegment(App.Vector(250, 199, 0), App.Vector(250, 198, 0)),
    Part.ArcOfCircle(Part.Circle(App.Vector(253, 198, 0), App.Vector(0, 0, 1), 3), math.radians(-180), math.radians(-90)),
    Part.LineSegment(App.Vector(253, 195, 0), App.Vector(292, 195, 0)),
    Part.ArcOfCircle(Part.Circle(App.Vector(292, 192, 0), App.Vector(0, 0, 1), 3), math.radians(0), math.radians(90)),
    Part.LineSegment(App.Vector(295, 192, 0), App.Vector(295, 153, 0)),
    Part.ArcOfCircle(Part.Circle(App.Vector(298, 153, 0), App.Vector(0, 0, 1), 3), math.radians(-180), math.radians(-90)),
    Part.LineSegment(App.Vector(298, 150, 0), App.Vector(299, 150, 0)),
    Part.ArcOfCircle(Part.Circle(App.Vector(299, 151, 0), App.Vector(0, 0, 1), 1), math.radians(-90), math.radians(0)),
    Part.LineSegment(App.Vector(300, 151, 0), App.Vector(300, 199, 0)),
    Part.ArcOfCircle(Part.Circle(App.Vector(299, 199, 0), App.Vector(0, 0, 1), 1), math.radians(0), math.radians(90)),
    Part.LineSegment(App.Vector(299, 200, 0), App.Vector(251, 200, 0)),
], False)
sketch5.addConstraint([
    Sketcher.Constraint("Tangent", 0, 2, 1, 1),
    Sketcher.Constraint("Tangent", 1, 2, 2, 1),
    Sketcher.Constraint("Tangent", 2, 2, 3, 1),
    Sketcher.Constraint("Tangent", 3, 2, 4, 1),
    Sketcher.Constraint("Tangent", 4, 2, 5, 1),
    Sketcher.Constraint("Tangent", 5, 2, 6, 1),
    Sketcher.Constraint("Tangent", 6, 2, 7, 1),
    Sketcher.Constraint("Tangent", 7, 2, 8, 1),
    Sketcher.Constraint("Tangent", 8, 2, 9, 2),
    Sketcher.Constraint("Tangent", 9, 1, 10, 1),
    Sketcher.Constraint("Tangent", 10, 2, 11, 1),
    Sketcher.Constraint("Tangent", 11, 2, 0, 1),
    Sketcher.Constraint("Tangent", 12, 2, 13, 1),
    Sketcher.Constraint("Tangent", 13, 2, 14, 1),
    Sketcher.Constraint("Tangent", 14, 2, 15, 1),
    Sketcher.Constraint("Tangent", 15, 2, 16, 2),
    Sketcher.Constraint("Tangent", 16, 1, 17, 1),
    Sketcher.Constraint("Tangent", 17, 2, 18, 1),
    Sketcher.Constraint("Tangent", 18, 2, 19, 1),
    Sketcher.Constraint("Tangent", 19, 2, 20, 1),
    Sketcher.Constraint("Tangent", 20, 2, 21, 1),
    Sketcher.Constraint("Tangent", 21, 2, 22, 1),
    Sketcher.Constraint("Tangent", 22, 2, 23, 1),
    Sketcher.Constraint("Tangent", 23, 2, 12, 1),
    Sketcher.Constraint("Vertical", 0),
    Sketcher.Constraint("Horizontal", 2),
    Sketcher.Constraint("Vertical", 4),
    Sketcher.Constraint("Horizontal", 6),
    Sketcher.Constraint("Vertical", 8),
    Sketcher.Constraint("Horizontal", 10),
    Sketcher.Constraint("Vertical", 13),
    Sketcher.Constraint("Horizontal", 15),
    Sketcher.Constraint("Vertical", 17),
    Sketcher.Constraint("Horizontal", 19),
    Sketcher.Constraint("Vertical", 21),
    Sketcher.Constraint("Horizontal", 23),
    Sketcher.Constraint("Equal", 1, 3),
    Sketcher.Constraint("Equal", 3, 5),
    Sketcher.Constraint("Equal", 7, 9),
    Sketcher.Constraint("Equal", 9, 11),
    Sketcher.Constraint("Equal", 5, 12),
    Sketcher.Constraint("Equal", 11, 14),
    Sketcher.Constraint("Equal", 14, 16),
    Sketcher.Constraint("Equal", 16, 18),
    Sketcher.Constraint("Equal", 12, 20),
    Sketcher.Constraint("Equal", 20, 22),
    Sketcher.Constraint("Symmetric", 3, 2, 12, 2, -2),
    Sketcher.Constraint("Horizontal", 11, 3, 14, 3),
    Sketcher.Constraint("Horizontal", 7, 3, 18, 3),
    Sketcher.Constraint("Equal", 10, 15),
    Sketcher.Constraint("Equal", 6, 19),
    Sketcher.Constraint("Equal", 19, 0),
    Sketcher.Constraint("Equal", 23, 4),
    Sketcher.Constraint("Radius", 1, Q("0.999999 mm")),
    Sketcher.Constraint("Radius", 7, Q("3.000001 mm")),
    Sketcher.Constraint("DistanceX", 2, 2, 2, 1, Q("48 mm")),
    Sketcher.Constraint("DistanceX", 6, 1, 6, 2, Q("1 mm")),
    Sketcher.Constraint("DistanceX", 1, 3, -1, 1, Q("200.999999 mm")),
    Sketcher.Constraint("DistanceY", -1, 1, 1, 3, Q("199.000001 mm")),
])
pad5 = body5.newObject("PartDesign::Pad", "Pad004")
pad5.Profile = sketch5
pad5.Length = 340
pad5.Reversed = True

doc.recompute()
